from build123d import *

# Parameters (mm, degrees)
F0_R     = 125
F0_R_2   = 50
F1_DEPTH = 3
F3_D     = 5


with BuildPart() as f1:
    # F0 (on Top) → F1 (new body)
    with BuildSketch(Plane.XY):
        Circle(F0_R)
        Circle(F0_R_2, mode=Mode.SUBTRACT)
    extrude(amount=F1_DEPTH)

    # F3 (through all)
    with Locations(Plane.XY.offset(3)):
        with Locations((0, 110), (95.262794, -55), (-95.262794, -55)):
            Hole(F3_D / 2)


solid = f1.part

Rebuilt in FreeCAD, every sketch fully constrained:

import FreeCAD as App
import Part
import Sketcher

V = App.Vector
Q = App.Units.Quantity

doc = App.newDocument("Part")
body = doc.addObject("PartDesign::Body", "Body")

# Sketch on XY plane
sketch1 = body.newObject("Sketcher::SketchObject", "Sketch")
sketch1.AttachmentSupport = (doc.getObject("XY_Plane"), [""])
sketch1.MapMode = "FlatFace"
sketch1.addGeometry([
    Part.Circle(V(0, 0, 0), V(0, 0, 1), 125),
    Part.Circle(V(0, 0, 0), V(0, 0, 1), 50),
], False)
sketch1.addConstraint([
    Sketcher.Constraint("Coincident", 0, 3, -1, 1),
    Sketcher.Constraint("Coincident", 1, 3, -1, 1),
    Sketcher.Constraint("Diameter", 0, Q("250 mm")),
    Sketcher.Constraint("Diameter", 1, Q("100 mm")),
])
pad1 = body.newObject("PartDesign::Pad", "Pad")
pad1.Profile = sketch1
pad1.Length = 3

# Sketch on XY plane
sketch2 = body.newObject("Sketcher::SketchObject", "Sketch001")
sketch2.AttachmentSupport = (doc.getObject("XY_Plane"), [""])
sketch2.MapMode = "FlatFace"
sketch2.AttachmentOffset = App.Placement(V(0, 0, 3), App.Rotation())
sketch2.addGeometry([
    Part.Circle(V(0, 110, 0), V(0, 0, 1), 2.5),
    Part.Circle(V(95.3, -55, 0), V(0, 0, 1), 2.5),
    Part.Circle(V(-95.3, -55, 0), V(0, 0, 1), 2.5),
], False)
sketch2.addConstraint([
    Sketcher.Constraint("Equal", 0, 1),
    Sketcher.Constraint("Equal", 1, 2),
    Sketcher.Constraint("Symmetric", 1, 3, 2, 3, -2),
    Sketcher.Constraint("PointOnObject", 0, 3, -2),
    Sketcher.Constraint("Diameter", 0, Q("5 mm")),
    Sketcher.Constraint("DistanceY", -1, 1, 0, 3, Q("110 mm")),
    Sketcher.Constraint("DistanceY", 1, 3, -1, 1, Q("55 mm")),
    Sketcher.Constraint("DistanceX", 2, 3, 1, 3, Q("190.525588 mm")),
])
doc.recompute()
hole = body.newObject("PartDesign::Hole", "Hole")
hole.Profile = sketch2
hole.ThreadType = "None"
hole.Diameter = 5
hole.DepthType = "ThroughAll"

doc.recompute()
